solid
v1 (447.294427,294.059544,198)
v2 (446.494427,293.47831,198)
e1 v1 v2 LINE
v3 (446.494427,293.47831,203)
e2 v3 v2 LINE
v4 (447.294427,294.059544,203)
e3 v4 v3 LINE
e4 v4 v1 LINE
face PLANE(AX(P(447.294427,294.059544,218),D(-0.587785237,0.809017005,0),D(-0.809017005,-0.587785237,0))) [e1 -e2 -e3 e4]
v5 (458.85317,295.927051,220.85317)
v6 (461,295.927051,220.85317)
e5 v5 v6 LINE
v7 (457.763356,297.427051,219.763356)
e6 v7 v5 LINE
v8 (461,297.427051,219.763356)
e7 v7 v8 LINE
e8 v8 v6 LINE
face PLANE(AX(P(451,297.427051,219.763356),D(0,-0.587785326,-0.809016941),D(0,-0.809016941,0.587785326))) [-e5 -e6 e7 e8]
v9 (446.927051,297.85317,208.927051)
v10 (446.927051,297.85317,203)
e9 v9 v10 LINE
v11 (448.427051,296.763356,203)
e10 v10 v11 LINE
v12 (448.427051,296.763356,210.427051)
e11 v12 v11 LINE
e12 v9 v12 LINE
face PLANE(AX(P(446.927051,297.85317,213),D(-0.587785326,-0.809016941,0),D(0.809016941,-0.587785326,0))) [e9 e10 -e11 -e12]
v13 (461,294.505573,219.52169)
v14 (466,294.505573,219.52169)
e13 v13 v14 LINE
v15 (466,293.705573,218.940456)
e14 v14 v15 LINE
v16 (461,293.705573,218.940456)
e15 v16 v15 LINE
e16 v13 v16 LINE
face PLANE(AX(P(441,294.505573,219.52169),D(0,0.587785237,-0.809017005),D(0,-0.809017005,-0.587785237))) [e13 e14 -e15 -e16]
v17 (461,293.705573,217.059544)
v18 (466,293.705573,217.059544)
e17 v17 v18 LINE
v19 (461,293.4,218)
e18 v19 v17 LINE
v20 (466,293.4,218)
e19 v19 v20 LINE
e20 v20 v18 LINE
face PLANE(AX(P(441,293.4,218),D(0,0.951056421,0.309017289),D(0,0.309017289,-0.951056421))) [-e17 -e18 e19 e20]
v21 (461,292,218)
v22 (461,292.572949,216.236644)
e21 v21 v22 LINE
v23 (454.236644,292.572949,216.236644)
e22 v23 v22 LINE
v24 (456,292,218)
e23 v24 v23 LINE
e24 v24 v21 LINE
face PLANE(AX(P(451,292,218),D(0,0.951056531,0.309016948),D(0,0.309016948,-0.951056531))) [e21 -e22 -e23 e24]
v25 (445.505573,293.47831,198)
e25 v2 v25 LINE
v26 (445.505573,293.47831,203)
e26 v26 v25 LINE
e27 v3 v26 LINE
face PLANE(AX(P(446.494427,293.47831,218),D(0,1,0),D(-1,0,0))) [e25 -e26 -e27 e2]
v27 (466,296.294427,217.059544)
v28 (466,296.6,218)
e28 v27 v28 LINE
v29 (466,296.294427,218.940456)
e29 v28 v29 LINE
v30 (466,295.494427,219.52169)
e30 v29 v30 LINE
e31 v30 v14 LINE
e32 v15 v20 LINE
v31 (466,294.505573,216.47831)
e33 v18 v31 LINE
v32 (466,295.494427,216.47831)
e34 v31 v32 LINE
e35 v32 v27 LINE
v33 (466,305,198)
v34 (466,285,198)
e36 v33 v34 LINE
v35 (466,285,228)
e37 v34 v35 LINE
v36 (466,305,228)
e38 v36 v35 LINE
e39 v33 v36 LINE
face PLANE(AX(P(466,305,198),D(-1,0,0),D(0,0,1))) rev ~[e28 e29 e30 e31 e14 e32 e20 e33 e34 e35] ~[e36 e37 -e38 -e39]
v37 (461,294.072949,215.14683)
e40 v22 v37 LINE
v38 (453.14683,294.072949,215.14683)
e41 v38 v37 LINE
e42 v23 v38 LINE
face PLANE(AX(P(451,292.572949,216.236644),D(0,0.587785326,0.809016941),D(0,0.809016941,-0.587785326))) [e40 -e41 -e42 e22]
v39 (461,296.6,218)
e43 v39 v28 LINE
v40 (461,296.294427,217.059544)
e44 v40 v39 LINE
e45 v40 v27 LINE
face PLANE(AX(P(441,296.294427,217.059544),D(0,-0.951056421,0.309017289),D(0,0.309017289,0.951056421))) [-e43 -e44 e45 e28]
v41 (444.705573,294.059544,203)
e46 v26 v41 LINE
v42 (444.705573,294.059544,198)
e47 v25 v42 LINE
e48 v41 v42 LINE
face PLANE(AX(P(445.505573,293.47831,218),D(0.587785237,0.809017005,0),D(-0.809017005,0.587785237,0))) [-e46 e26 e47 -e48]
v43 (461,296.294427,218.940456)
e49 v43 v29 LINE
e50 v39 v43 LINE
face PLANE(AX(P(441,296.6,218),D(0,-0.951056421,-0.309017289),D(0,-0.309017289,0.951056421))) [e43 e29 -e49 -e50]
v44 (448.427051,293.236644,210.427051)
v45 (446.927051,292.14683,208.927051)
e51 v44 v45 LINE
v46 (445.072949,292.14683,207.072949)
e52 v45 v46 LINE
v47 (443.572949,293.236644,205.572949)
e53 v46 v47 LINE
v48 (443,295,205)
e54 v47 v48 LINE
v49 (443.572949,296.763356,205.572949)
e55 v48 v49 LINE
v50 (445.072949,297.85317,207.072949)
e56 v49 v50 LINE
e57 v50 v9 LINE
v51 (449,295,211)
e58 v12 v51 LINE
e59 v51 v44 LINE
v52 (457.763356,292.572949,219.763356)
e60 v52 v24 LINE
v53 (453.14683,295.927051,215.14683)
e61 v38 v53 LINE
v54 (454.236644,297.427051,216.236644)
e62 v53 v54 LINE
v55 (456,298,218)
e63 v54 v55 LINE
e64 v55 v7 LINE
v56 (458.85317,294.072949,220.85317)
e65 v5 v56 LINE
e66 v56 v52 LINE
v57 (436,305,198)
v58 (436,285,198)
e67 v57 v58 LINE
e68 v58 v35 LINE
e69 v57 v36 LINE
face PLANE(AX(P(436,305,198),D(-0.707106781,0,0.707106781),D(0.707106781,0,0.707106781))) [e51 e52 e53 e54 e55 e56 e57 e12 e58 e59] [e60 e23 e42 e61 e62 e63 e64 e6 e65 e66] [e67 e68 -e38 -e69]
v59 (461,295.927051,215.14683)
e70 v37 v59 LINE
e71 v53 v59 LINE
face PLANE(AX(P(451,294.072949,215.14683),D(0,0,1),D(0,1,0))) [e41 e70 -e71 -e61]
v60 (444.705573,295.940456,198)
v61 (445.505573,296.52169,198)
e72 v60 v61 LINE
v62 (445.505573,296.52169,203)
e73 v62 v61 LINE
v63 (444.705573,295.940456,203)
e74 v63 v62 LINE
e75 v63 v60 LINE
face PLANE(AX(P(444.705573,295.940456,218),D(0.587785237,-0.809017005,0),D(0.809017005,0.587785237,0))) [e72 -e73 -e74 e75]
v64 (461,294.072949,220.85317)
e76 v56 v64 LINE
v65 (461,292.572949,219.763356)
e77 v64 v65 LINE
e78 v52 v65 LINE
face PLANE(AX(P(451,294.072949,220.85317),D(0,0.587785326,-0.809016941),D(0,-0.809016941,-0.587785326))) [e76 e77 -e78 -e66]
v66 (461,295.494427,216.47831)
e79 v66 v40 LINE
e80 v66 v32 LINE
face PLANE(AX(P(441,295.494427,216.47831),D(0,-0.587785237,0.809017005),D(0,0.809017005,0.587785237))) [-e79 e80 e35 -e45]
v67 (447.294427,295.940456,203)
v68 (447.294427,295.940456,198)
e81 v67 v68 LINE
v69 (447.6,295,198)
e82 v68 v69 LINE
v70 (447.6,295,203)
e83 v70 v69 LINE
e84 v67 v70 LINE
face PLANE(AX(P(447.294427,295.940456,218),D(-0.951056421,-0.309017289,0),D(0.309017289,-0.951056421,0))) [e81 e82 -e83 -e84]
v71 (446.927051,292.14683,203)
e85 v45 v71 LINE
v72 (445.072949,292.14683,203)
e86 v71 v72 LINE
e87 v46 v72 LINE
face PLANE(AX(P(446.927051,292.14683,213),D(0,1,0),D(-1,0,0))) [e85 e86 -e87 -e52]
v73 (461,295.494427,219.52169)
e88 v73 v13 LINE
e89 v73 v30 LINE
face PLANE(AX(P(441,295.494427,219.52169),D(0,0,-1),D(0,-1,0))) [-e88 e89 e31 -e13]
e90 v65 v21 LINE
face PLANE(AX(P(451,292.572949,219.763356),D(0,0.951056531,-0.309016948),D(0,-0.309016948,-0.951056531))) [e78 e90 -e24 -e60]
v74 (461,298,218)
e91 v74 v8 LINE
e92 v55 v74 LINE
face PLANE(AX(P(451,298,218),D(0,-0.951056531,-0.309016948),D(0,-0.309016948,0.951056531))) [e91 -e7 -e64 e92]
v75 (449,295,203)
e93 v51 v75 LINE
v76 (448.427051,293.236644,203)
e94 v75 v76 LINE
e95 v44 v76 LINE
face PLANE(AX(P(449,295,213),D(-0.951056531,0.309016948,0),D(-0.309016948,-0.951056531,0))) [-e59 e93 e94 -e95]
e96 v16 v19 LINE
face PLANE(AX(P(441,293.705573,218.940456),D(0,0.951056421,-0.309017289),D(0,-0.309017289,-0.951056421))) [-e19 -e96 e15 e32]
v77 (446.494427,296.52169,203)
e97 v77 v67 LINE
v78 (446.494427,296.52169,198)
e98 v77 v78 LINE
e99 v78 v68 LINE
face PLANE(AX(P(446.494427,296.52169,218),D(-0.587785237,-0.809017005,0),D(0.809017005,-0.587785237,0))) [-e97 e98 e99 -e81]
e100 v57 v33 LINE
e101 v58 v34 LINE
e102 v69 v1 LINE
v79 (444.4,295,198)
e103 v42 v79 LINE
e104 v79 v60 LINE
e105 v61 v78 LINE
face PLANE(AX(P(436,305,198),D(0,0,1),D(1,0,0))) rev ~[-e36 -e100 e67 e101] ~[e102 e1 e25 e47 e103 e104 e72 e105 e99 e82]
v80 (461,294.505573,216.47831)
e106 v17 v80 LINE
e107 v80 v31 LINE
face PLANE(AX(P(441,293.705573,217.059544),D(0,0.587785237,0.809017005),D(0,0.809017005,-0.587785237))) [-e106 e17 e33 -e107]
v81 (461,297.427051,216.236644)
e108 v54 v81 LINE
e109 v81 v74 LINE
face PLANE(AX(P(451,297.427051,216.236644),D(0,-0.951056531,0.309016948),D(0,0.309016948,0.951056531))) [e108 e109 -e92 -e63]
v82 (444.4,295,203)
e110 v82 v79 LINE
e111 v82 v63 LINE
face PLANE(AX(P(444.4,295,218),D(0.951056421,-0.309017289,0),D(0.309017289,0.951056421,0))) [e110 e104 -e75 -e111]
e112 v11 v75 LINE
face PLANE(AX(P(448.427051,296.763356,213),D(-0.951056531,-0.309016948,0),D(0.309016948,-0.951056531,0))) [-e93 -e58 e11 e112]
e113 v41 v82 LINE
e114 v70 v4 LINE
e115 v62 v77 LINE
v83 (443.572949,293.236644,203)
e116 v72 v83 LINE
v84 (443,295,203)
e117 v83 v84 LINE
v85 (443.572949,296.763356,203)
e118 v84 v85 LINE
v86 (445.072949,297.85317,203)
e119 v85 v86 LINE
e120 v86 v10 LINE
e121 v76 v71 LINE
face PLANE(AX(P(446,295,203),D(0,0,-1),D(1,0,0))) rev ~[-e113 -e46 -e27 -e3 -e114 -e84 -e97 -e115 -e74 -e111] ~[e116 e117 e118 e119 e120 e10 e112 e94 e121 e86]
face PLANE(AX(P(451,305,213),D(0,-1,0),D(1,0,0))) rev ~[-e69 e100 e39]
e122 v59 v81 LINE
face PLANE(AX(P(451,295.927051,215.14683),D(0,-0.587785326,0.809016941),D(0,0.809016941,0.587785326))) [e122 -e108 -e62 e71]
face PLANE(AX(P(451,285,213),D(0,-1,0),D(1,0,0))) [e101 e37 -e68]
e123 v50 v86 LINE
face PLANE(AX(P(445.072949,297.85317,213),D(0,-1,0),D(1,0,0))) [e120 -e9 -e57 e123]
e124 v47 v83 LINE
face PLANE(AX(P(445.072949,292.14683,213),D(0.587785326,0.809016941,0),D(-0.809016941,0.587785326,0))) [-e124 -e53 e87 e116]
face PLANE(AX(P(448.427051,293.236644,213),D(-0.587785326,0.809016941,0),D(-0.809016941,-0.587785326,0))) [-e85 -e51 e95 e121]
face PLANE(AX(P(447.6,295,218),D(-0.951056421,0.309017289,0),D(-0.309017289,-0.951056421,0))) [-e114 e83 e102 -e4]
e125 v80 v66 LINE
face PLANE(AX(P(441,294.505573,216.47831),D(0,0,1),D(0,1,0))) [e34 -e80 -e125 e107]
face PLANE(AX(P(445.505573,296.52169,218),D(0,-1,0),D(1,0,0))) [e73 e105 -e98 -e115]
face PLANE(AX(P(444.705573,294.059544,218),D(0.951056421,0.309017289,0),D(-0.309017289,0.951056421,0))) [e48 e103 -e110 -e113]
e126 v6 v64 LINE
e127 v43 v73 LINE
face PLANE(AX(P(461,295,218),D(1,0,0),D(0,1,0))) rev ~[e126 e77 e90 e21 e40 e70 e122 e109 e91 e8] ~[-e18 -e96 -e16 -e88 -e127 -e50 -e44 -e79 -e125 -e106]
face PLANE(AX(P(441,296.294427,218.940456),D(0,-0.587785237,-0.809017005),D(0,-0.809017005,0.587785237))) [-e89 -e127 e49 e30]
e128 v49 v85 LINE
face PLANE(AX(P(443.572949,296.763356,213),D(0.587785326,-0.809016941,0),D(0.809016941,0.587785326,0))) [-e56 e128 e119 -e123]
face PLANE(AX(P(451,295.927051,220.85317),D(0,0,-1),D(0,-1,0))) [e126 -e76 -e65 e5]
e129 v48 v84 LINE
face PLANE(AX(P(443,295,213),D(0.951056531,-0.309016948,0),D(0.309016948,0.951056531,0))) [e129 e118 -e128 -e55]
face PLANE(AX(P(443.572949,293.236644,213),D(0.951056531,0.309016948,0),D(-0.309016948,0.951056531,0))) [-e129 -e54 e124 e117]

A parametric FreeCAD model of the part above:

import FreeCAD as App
import Part
import Sketcher

V = App.Vector
Q = App.Units.Quantity


def add_polygon(sketch, points):
    """Adds a closed chain of lines whose ends are joined by coincident constraints."""
    first, n = sketch.GeometryCount, len(points)
    for a, b in zip(points, points[1:] + points[:1]):
        sketch.addGeometry(Part.LineSegment(App.Vector(*a, 0), App.Vector(*b, 0)), False)
    for i in range(n):
        sketch.addConstraint(Sketcher.Constraint("Coincident", first + i, 2, first + (i + 1) % n, 1))

doc = App.newDocument("Part")
body = doc.addObject("PartDesign::Body", "Body")

# Sketch on XY plane
sketch1 = doc.addObject("Sketcher::SketchObject", "Sketch")
body.addObject(sketch1)
sketch1.AttachmentSupport = (doc.XY_Plane, [""])
sketch1.MapMode = "FlatFace"
add_polygon(sketch1, [(1.6, 0), (1.3, 0.9), (0.5, 1.5), (-0.5, 1.5), (-1.3, 0.9), (-1.6, 0), (-1.3, -0.9), (-0.5, -1.5), (0.5, -1.5), (1.3, -0.9)])  # lines 0-9
sketch1.addConstraint(Sketcher.Constraint("Horizontal", 2))
sketch1.addConstraint(Sketcher.Constraint("Horizontal", 7))
sketch1.addConstraint(Sketcher.Constraint("Symmetric", 0, 2, 5, 2, -1, 1))
sketch1.addConstraint(Sketcher.Constraint("Symmetric", 1, 2, 6, 2, -1, 1))
sketch1.addConstraint(Sketcher.Constraint("Symmetric", 3, 2, 8, 2, -1, 1))
sketch1.addConstraint(Sketcher.Constraint("Symmetric", 4, 2, 9, 2, -1, 1))
sketch1.addConstraint(Sketcher.Constraint("Symmetric", 0, 2, 3, 2, -2))
sketch1.addConstraint(Sketcher.Constraint("PointOnObject", 4, 2, -1))
sketch1.addConstraint(Sketcher.Constraint("Parallel", 3, 8))
sketch1.addConstraint(Sketcher.Constraint("Vertical", 2, 2, 6, 2))
sketch1.addConstraint(Sketcher.Constraint("Equal", 0, 1))
sketch1.addConstraint(Sketcher.Constraint("Angle", 0, Q("108.000018 deg")))
sketch1.addConstraint(Sketcher.Constraint("Angle", 1, Q("144.000001 deg")))
sketch1.addConstraint(Sketcher.Constraint("DistanceX", 4, 2, -1, 1, 1.6))
sketch1.addConstraint(Sketcher.Constraint("DistanceX", 1, 2, 0, 2, 0.8))
pad1 = doc.addObject("PartDesign::Pad", "Pad")
body.addObject(pad1)
pad1.Profile = sketch1
pad1.Length = 30
body2 = doc.addObject("PartDesign::Body", "Body001")
doc.recompute()

body.Placement = App.Placement(V(0, 0, 0), App.Rotation(V(0, 1, 0), 90))
boolean = doc.addObject("PartDesign::Boolean", "Boolean")
body2.addObject(boolean)
boolean.Type = "Fuse"
boolean.addObjects([body])
body3 = doc.addObject("PartDesign::Body", "Body002")
doc.recompute()

body2.Placement = App.Placement(V(5, 20, 10), App.Rotation(V(0, 0, 1), 0))
boolean2 = doc.addObject("PartDesign::Boolean", "Boolean001")
body3.addObject(boolean2)
boolean2.Type = "Fuse"
boolean2.addObjects([body2])
body4 = doc.addObject("PartDesign::Body", "Body003")

# Sketch on XY plane
sketch2 = doc.addObject("Sketcher::SketchObject", "Sketch001")
body4.addObject(sketch2)
sketch2.AttachmentSupport = (doc.getObject("XY_Plane003"), [""])
sketch2.MapMode = "FlatFace"
add_polygon(sketch2, [(3, 0), (2.4, 1.8), (0.9, 2.9), (-0.9, 2.9), (-2.4, 1.8), (-3, 0), (-2.4, -1.8), (-0.9, -2.9), (0.9, -2.9), (2.4, -1.8)])  # lines 0-9
sketch2.addConstraint(Sketcher.Constraint("Horizontal", 2))
sketch2.addConstraint(Sketcher.Constraint("Horizontal", 7))
sketch2.addConstraint(Sketcher.Constraint("Symmetric", 0, 2, 5, 2, -1, 1))
sketch2.addConstraint(Sketcher.Constraint("Symmetric", 1, 2, 6, 2, -1, 1))
sketch2.addConstraint(Sketcher.Constraint("Symmetric", 3, 2, 8, 2, -1, 1))
sketch2.addConstraint(Sketcher.Constraint("Symmetric", 4, 2, 9, 2, -1, 1))
sketch2.addConstraint(Sketcher.Constraint("Symmetric", 0, 2, 3, 2, -2))
sketch2.addConstraint(Sketcher.Constraint("PointOnObject", 4, 2, -1))
sketch2.addConstraint(Sketcher.Constraint("Parallel", 3, 8))
sketch2.addConstraint(Sketcher.Constraint("Vertical", 2, 2, 6, 2))
sketch2.addConstraint(Sketcher.Constraint("Equal", 0, 1))
sketch2.addConstraint(Sketcher.Constraint("Angle", 0, Q("107.999997 deg")))
sketch2.addConstraint(Sketcher.Constraint("Angle", 1, Q("143.999995 deg")))
sketch2.addConstraint(Sketcher.Constraint("DistanceX", 4, 2, -1, 1, 3.0))
sketch2.addConstraint(Sketcher.Constraint("DistanceX", 1, 2, 0, 2, 1.5))
pad2 = doc.addObject("PartDesign::Pad", "Pad001")
body4.addObject(pad2)
pad2.Profile = sketch2
pad2.Length = 10
body5 = doc.addObject("PartDesign::Body", "Body004")
doc.recompute()

body4.Placement = App.Placement(V(0, 0, 0), App.Rotation(V(0, 1, 0), 90))
boolean3 = doc.addObject("PartDesign::Boolean", "Boolean002")
body5.addObject(boolean3)
boolean3.Type = "Fuse"
boolean3.addObjects([body4])
body6 = doc.addObject("PartDesign::Body", "Body005")
doc.recompute()

body5.Placement = App.Placement(V(15, 20, 10), App.Rotation(V(0, 0, 1), 0))
boolean4 = doc.addObject("PartDesign::Boolean", "Boolean003")
body6.addObject(boolean4)
boolean4.Type = "Fuse"
boolean4.addObjects([body5])
body7 = doc.addObject("PartDesign::Body", "Body006")

# Sketch on XY plane
sketch3 = doc.addObject("Sketcher::SketchObject", "Sketch002")
body7.addObject(sketch3)
sketch3.AttachmentSupport = (doc.getObject("XY_Plane006"), [""])
sketch3.MapMode = "FlatFace"
add_polygon(sketch3, [(1.6, 0), (1.3, 0.9), (0.5, 1.5), (-0.5, 1.5), (-1.3, 0.9), (-1.6, 0), (-1.3, -0.9), (-0.5, -1.5), (0.5, -1.5), (1.3, -0.9)])  # lines 0-9
sketch3.addConstraint(Sketcher.Constraint("Horizontal", 2))
sketch3.addConstraint(Sketcher.Constraint("Horizontal", 7))
sketch3.addConstraint(Sketcher.Constraint("Symmetric", 0, 2, 5, 2, -1, 1))
sketch3.addConstraint(Sketcher.Constraint("Symmetric", 1, 2, 6, 2, -1, 1))
sketch3.addConstraint(Sketcher.Constraint("Symmetric", 3, 2, 8, 2, -1, 1))
sketch3.addConstraint(Sketcher.Constraint("Symmetric", 4, 2, 9, 2, -1, 1))
sketch3.addConstraint(Sketcher.Constraint("Symmetric", 0, 2, 3, 2, -2))
sketch3.addConstraint(Sketcher.Constraint("PointOnObject", 4, 2, -1))
sketch3.addConstraint(Sketcher.Constraint("Parallel", 3, 8))
sketch3.addConstraint(Sketcher.Constraint("Vertical", 2, 2, 6, 2))
sketch3.addConstraint(Sketcher.Constraint("Equal", 0, 1))
sketch3.addConstraint(Sketcher.Constraint("Angle", 0, Q("108.000018 deg")))
sketch3.addConstraint(Sketcher.Constraint("Angle", 1, Q("144.000001 deg")))
sketch3.addConstraint(Sketcher.Constraint("DistanceX", 4, 2, -1, 1, 1.6))
sketch3.addConstraint(Sketcher.Constraint("DistanceX", 1, 2, 0, 2, 0.8))
pad3 = doc.addObject("PartDesign::Pad", "Pad002")
body7.addObject(pad3)
pad3.Profile = sketch3
pad3.Length = 30
body8 = doc.addObject("PartDesign::Body", "Body007")
doc.recompute()

body7.Placement = App.Placement(V(0, 0, 0), App.Rotation(V(1, 0, 0), 90))
boolean5 = doc.addObject("PartDesign::Boolean", "Boolean004")
body8.addObject(boolean5)
boolean5.Type = "Fuse"
boolean5.addObjects([body7])
body9 = doc.addObject("PartDesign::Body", "Body008")
doc.recompute()

body8.Placement = App.Placement(V(10, 20, 10), App.Rotation(V(0, 0, 1), 0))
boolean6 = doc.addObject("PartDesign::Boolean", "Boolean005")
body9.addObject(boolean6)
boolean6.Type = "Fuse"
boolean6.addObjects([body8])
body10 = doc.addObject("PartDesign::Body", "Body009")

# Sketch on XY plane
sketch4 = doc.addObject("Sketcher::SketchObject", "Sketch003")
body10.addObject(sketch4)
sketch4.AttachmentSupport = (doc.getObject("XY_Plane009"), [""])
sketch4.MapMode = "FlatFace"
add_polygon(sketch4, [(3, 0), (2.4, 1.8), (0.9, 2.9), (-0.9, 2.9), (-2.4, 1.8), (-3, 0), (-2.4, -1.8), (-0.9, -2.9), (0.9, -2.9), (2.4, -1.8)])  # lines 0-9
sketch4.addConstraint(Sketcher.Constraint("Horizontal", 2))
sketch4.addConstraint(Sketcher.Constraint("Horizontal", 7))
sketch4.addConstraint(Sketcher.Constraint("Symmetric", 0, 2, 5, 2, -1, 1))
sketch4.addConstraint(Sketcher.Constraint("Symmetric", 1, 2, 6, 2, -1, 1))
sketch4.addConstraint(Sketcher.Constraint("Symmetric", 3, 2, 8, 2, -1, 1))
sketch4.addConstraint(Sketcher.Constraint("Symmetric", 4, 2, 9, 2, -1, 1))
sketch4.addConstraint(Sketcher.Constraint("Symmetric", 0, 2, 3, 2, -2))
sketch4.addConstraint(Sketcher.Constraint("PointOnObject", 4, 2, -1))
sketch4.addConstraint(Sketcher.Constraint("Parallel", 3, 8))
sketch4.addConstraint(Sketcher.Constraint("Vertical", 2, 2, 6, 2))
sketch4.addConstraint(Sketcher.Constraint("Equal", 0, 1))
sketch4.addConstraint(Sketcher.Constraint("Angle", 0, Q("107.999997 deg")))
sketch4.addConstraint(Sketcher.Constraint("Angle", 1, Q("143.999995 deg")))
sketch4.addConstraint(Sketcher.Constraint("DistanceX", 4, 2, -1, 1, 3.0))
sketch4.addConstraint(Sketcher.Constraint("DistanceX", 1, 2, 0, 2, 1.5))
pad4 = doc.addObject("PartDesign::Pad", "Pad003")
body10.addObject(pad4)
pad4.Profile = sketch4
pad4.Length = 10
body11 = doc.addObject("PartDesign::Body", "Body010")
doc.recompute()

body10.Placement = App.Placement(V(0, 0, 0), App.Rotation(V(1, 0, 0), 90))
boolean7 = doc.addObject("PartDesign::Boolean", "Boolean006")
body11.addObject(boolean7)
boolean7.Type = "Fuse"
boolean7.addObjects([body10])
body12 = doc.addObject("PartDesign::Body", "Body011")
doc.recompute()

body11.Placement = App.Placement(V(10, 15, 10), App.Rotation(V(0, 0, 1), 0))
boolean8 = doc.addObject("PartDesign::Boolean", "Boolean007")
body12.addObject(boolean8)
boolean8.Type = "Fuse"
boolean8.addObjects([body11])
body13 = doc.addObject("PartDesign::Body", "Body012")

# Sketch on XY plane
sketch5 = doc.addObject("Sketcher::SketchObject", "Sketch004")
body13.addObject(sketch5)
sketch5.AttachmentSupport = (doc.getObject("XY_Plane012"), [""])
sketch5.MapMode = "FlatFace"
add_polygon(sketch5, [(0, 30), (0, 0), (60, 0), (60, 30)])  # lines 0-3
sketch5.addConstraint(Sketcher.Constraint("Vertical", 0))
sketch5.addConstraint(Sketcher.Constraint("Horizontal", 1))
sketch5.addConstraint(Sketcher.Constraint("Vertical", 2))
sketch5.addConstraint(Sketcher.Constraint("Horizontal", 3))
sketch5.addConstraint(Sketcher.Constraint("Coincident", 0, 2, -1, 1))
sketch5.addConstraint(Sketcher.Constraint("DistanceX", 1, 1, 1, 2, 60.0))
sketch5.addConstraint(Sketcher.Constraint("DistanceY", 0, 2, 0, 1, 30.0))
pad5 = doc.addObject("PartDesign::Pad", "Pad004")
body13.addObject(pad5)
pad5.Profile = sketch5
pad5.Length = 20
body14 = doc.addObject("PartDesign::Body", "Body013")
doc.recompute()

body13.Placement = App.Placement(V(0, 0, 0), App.Rotation(V(0, 0, 1), 45))
boolean9 = doc.addObject("PartDesign::Boolean", "Boolean008")
body14.addObject(boolean9)
boolean9.Type = "Fuse"
boolean9.addObjects([body13])
doc.recompute()

boolean10 = doc.addObject("PartDesign::Boolean", "Boolean009")
body14.addObject(boolean10)
boolean10.Type = "Fuse"
boolean10.addObjects([body3])
doc.recompute()

boolean11 = doc.addObject("PartDesign::Boolean", "Boolean010")
body14.addObject(boolean11)
boolean11.Type = "Fuse"
boolean11.addObjects([body6])
doc.recompute()

boolean12 = doc.addObject("PartDesign::Boolean", "Boolean011")
body14.addObject(boolean12)
boolean12.Type = "Fuse"
boolean12.addObjects([body9])
doc.recompute()

boolean13 = doc.addObject("PartDesign::Boolean", "Boolean012")
body14.addObject(boolean13)
boolean13.Type = "Fuse"
boolean13.addObjects([body12])
body15 = doc.addObject("PartDesign::Body", "Body014")

# Sketch on XY plane
sketch6 = doc.addObject("Sketcher::SketchObject", "Sketch005")
body15.addObject(sketch6)
sketch6.AttachmentSupport = (doc.getObject("XY_Plane014"), [""])
sketch6.MapMode = "FlatFace"
add_polygon(sketch6, [(0, 30), (0, 0), (30, 0), (30, 30)])  # lines 0-3
sketch6.addConstraint(Sketcher.Constraint("Vertical", 0))
sketch6.addConstraint(Sketcher.Constraint("Horizontal", 1))
sketch6.addConstraint(Sketcher.Constraint("Vertical", 2))
sketch6.addConstraint(Sketcher.Constraint("Horizontal", 3))
sketch6.addConstraint(Sketcher.Constraint("Coincident", 0, 2, -1, 1))
sketch6.addConstraint(Sketcher.Constraint("Equal", 3, 0))
sketch6.addConstraint(Sketcher.Constraint("DistanceX", 1, 1, 1, 2, 30.0))
pad6 = doc.addObject("PartDesign::Pad", "Pad005")
body15.addObject(pad6)
pad6.Profile = sketch6
pad6.Length = 20
doc.recompute()

boolean14 = doc.addObject("PartDesign::Boolean", "Boolean013")
body15.addObject(boolean14)
boolean14.Type = "Cut"
boolean14.addObjects([body14])
body16 = doc.addObject("PartDesign::Body", "Body015")
doc.recompute()

body15.Placement = App.Placement(V(0, 0, 0), App.Rotation(V(1, 0, 0), 90))
boolean15 = doc.addObject("PartDesign::Boolean", "Boolean014")
body16.addObject(boolean15)
boolean15.Type = "Fuse"
boolean15.addObjects([body15])
body17 = doc.addObject("PartDesign::Body", "Body016")
doc.recompute()

body16.Placement = App.Placement(V(436, 305, 198), App.Rotation(V(0, 0, 1), 0))
boolean16 = doc.addObject("PartDesign::Boolean", "Boolean015")
body17.addObject(boolean16)
boolean16.Type = "Fuse"
boolean16.addObjects([body16])

doc.recompute()
